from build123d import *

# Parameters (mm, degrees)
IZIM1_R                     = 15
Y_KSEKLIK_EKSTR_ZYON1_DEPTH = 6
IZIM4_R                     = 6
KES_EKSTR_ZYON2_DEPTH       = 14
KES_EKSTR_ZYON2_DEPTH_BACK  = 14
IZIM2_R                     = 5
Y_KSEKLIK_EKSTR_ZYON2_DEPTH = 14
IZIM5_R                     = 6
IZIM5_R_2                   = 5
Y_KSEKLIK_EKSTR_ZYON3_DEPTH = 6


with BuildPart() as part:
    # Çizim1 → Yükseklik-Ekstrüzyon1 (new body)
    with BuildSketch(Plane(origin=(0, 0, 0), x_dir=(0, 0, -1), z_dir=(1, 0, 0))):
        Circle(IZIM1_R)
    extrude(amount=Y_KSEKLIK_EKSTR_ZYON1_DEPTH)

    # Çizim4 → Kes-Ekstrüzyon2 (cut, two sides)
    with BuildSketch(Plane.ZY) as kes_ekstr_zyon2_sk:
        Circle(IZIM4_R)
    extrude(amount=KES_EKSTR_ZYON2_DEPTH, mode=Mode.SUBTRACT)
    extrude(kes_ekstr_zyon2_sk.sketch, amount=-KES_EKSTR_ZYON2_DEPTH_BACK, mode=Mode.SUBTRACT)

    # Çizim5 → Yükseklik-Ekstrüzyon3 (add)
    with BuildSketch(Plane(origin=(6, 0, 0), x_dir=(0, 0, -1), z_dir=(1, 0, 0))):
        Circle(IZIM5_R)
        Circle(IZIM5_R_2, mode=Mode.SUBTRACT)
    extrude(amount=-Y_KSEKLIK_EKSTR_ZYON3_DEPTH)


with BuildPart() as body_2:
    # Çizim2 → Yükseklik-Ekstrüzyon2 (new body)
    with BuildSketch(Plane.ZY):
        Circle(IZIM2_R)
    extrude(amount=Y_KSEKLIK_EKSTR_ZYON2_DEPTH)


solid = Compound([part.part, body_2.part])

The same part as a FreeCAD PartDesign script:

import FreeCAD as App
import Part
import Sketcher

V = App.Vector
Q = App.Units.Quantity

doc = App.newDocument("Part")
body = doc.addObject("PartDesign::Body", "Body")

sketch1 = body.newObject("Sketcher::SketchObject", "Sketch")
sketch1.AttachmentSupport = (doc.getObject("YZ_Plane"), [""])
sketch1.MapMode = "FlatFace"
sketch1.addGeometry(Part.Circle(V(0, 0, 0), V(0, 0, 1), 15), False)
sketch1.addConstraint([
    Sketcher.Constraint("Coincident", 0, 3, -1, 1),
    Sketcher.Constraint("Diameter", 0, Q("30 mm")),
])
pad1 = body.newObject("PartDesign::Pad", "Pad")
pad1.Profile = sketch1
pad1.Length = 6

sketch2 = body.newObject("Sketcher::SketchObject", "Sketch001")
sketch2.AttachmentSupport = (doc.getObject("YZ_Plane"), [""])
sketch2.MapMode = "FlatFace"
sketch2.addGeometry(Part.Circle(V(0, 0, 0), V(0, 0, 1), 6), False)
sketch2.addConstraint([
    Sketcher.Constraint("Coincident", 0, 3, -1, 1),
    Sketcher.Constraint("Diameter", 0, Q("12 mm")),
])
pocket1 = body.newObject("PartDesign::Pocket", "Pocket")
pocket1.Profile = sketch2
pocket1.Type = "ThroughAll"
pocket1.Midplane = True

sketch3 = body.newObject("Sketcher::SketchObject", "Sketch002")
sketch3.AttachmentSupport = (doc.getObject("YZ_Plane"), [""])
sketch3.MapMode = "FlatFace"
sketch3.AttachmentOffset = App.Placement(V(0, 0, 6), App.Rotation())
sketch3.addGeometry([
    Part.Circle(V(0, 0, 0), V(0, 0, 1), 6),
    Part.Circle(V(0, 0, 0), V(0, 0, 1), 5),
], False)
sketch3.addConstraint([
    Sketcher.Constraint("Coincident", 0, 3, -1, 1),
    Sketcher.Constraint("Coincident", 1, 3, -1, 1),
    Sketcher.Constraint("Diameter", 0, Q("12 mm")),
    Sketcher.Constraint("Diameter", 1, Q("10 mm")),
])
pad2 = body.newObject("PartDesign::Pad", "Pad001")
pad2.Profile = sketch3
pad2.Length = 6
pad2.Reversed = True
body2 = doc.addObject("PartDesign::Body", "Body001")

sketch4 = body2.newObject("Sketcher::SketchObject", "Sketch003")
sketch4.AttachmentSupport = (doc.getObject("YZ_Plane001"), [""])
sketch4.MapMode = "FlatFace"
sketch4.addGeometry(Part.Circle(V(0, 0, 0), V(0, 0, 1), 5), False)
sketch4.addConstraint([
    Sketcher.Constraint("Coincident", 0, 3, -1, 1),
    Sketcher.Constraint("Diameter", 0, Q("10 mm")),
])
pad3 = body2.newObject("PartDesign::Pad", "Pad002")
pad3.Profile = sketch4
pad3.Length = 14
pad3.Reversed = True

doc.recompute()
